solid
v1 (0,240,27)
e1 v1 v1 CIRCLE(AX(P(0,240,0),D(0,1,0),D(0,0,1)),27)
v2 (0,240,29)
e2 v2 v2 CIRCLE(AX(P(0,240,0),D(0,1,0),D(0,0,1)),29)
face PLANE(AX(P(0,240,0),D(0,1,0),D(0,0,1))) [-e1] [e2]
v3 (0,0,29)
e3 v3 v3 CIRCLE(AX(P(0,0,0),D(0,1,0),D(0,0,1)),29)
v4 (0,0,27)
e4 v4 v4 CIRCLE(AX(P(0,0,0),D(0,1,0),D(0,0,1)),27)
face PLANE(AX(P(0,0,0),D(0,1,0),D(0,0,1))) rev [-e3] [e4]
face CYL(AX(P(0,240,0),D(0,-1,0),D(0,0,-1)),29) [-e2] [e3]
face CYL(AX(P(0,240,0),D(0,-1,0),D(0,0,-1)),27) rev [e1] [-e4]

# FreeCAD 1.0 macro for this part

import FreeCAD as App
import Part
import Sketcher

V = App.Vector

doc = App.newDocument("Part")
params = doc.addObject("Spreadsheet::Sheet", "Params")
for row, (alias, value) in enumerate([
    ("sketch1_diameter", "58 mm"),
    ("sketch1_diameter2", "54 mm"),
    ("pad1_length", "240 mm"),
], start=1):
    params.set(f"A{row}", alias)
    params.set(f"B{row}", "=" + value)
    params.setAlias(f"B{row}", alias)

body = doc.addObject("PartDesign::Body", "Body")

sketch1 = body.newObject("Sketcher::SketchObject", "Sketch")
sketch1.AttachmentSupport = (doc.getObject("XZ_Plane"), [""])
sketch1.MapMode = "FlatFace"
sketch1.addGeometry([
    Part.Circle(V(0, 0, 0), V(0, 0, 1), 29),
    Part.Circle(V(0, 0, 0), V(0, 0, 1), 27),
], False)
sketch1.addConstraint([
    Sketcher.Constraint("Coincident", 0, 3, -1, 1),
    Sketcher.Constraint("Coincident", 1, 3, -1, 1),
    Sketcher.Constraint("Diameter", 0, 58.0),
    Sketcher.Constraint("Diameter", 1, 54.0),
])
sketch1.setExpression("Constraints[2]", "Params.sketch1_diameter")
sketch1.setExpression("Constraints[3]", "Params.sketch1_diameter2")
pad1 = body.newObject("PartDesign::Pad", "Pad")
pad1.Profile = sketch1
pad1.setExpression("Length", "Params.pad1_length")
pad1.Reversed = True

doc.recompute()
